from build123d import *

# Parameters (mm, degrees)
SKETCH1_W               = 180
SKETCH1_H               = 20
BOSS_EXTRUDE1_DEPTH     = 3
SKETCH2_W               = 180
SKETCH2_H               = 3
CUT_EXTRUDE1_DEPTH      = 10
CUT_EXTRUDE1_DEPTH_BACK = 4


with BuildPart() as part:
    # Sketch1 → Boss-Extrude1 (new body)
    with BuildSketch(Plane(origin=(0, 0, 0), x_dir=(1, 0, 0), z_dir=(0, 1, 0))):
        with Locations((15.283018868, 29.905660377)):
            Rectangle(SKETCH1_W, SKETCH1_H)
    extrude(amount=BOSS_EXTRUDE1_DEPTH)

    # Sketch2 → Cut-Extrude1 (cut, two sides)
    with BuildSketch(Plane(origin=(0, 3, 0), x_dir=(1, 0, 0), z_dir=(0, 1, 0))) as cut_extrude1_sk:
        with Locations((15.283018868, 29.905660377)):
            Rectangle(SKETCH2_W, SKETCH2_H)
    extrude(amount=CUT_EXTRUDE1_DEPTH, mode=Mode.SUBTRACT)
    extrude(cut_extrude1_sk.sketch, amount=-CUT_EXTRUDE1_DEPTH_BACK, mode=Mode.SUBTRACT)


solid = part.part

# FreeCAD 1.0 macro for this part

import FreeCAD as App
import Part
import Sketcher

doc = App.newDocument("Part")
body = doc.addObject("PartDesign::Body", "Body")
body.AllowCompound = True

sketch1 = doc.addObject("Sketcher::SketchObject", "Sketch")
body.addObject(sketch1)
sketch1.AttachmentSupport = (doc.XZ_Plane, [""])
sketch1.MapMode = "FlatFace"
sketch1.addGeometry(Part.LineSegment(App.Vector(-75, -40, 0), App.Vector(-75, -20, 0)), False)
sketch1.addGeometry(Part.LineSegment(App.Vector(-75, -20, 0), App.Vector(105, -20, 0)), False)
sketch1.addGeometry(Part.LineSegment(App.Vector(105, -20, 0), App.Vector(105, -40, 0)), False)
sketch1.addGeometry(Part.LineSegment(App.Vector(105, -40, 0), App.Vector(-75, -40, 0)), False)
sketch1.addConstraint(Sketcher.Constraint("Coincident", 0, 2, 1, 1))
sketch1.addConstraint(Sketcher.Constraint("Coincident", 1, 2, 2, 1))
sketch1.addConstraint(Sketcher.Constraint("Coincident", 2, 2, 3, 1))
sketch1.addConstraint(Sketcher.Constraint("Coincident", 3, 2, 0, 1))
sketch1.addConstraint(Sketcher.Constraint("Vertical", 0))
sketch1.addConstraint(Sketcher.Constraint("Horizontal", 1))
sketch1.addConstraint(Sketcher.Constraint("Vertical", 2))
sketch1.addConstraint(Sketcher.Constraint("Horizontal", 3))
sketch1.addConstraint(Sketcher.Constraint("DistanceX", 1, 1, 1, 2, 180.0))
sketch1.addConstraint(Sketcher.Constraint("DistanceY", 0, 1, 0, 2, 20.0))
sketch1.addConstraint(Sketcher.Constraint("DistanceX", 0, 2, -1, 1, 74.716981))
sketch1.addConstraint(Sketcher.Constraint("DistanceY", 0, 2, -1, 1, 19.90566))
pad1 = doc.addObject("PartDesign::Pad", "Pad")
body.addObject(pad1)
pad1.Profile = sketch1
pad1.Length = 3
pad1.Reversed = True

sketch2 = doc.addObject("Sketcher::SketchObject", "Sketch001")
body.addObject(sketch2)
sketch2.AttachmentSupport = (doc.XZ_Plane, [""])
sketch2.MapMode = "FlatFace"
sketch2.AttachmentOffset = App.Placement(App.Vector(0, 0, -3), App.Rotation())
sketch2.addGeometry(Part.LineSegment(App.Vector(-74.7, -31.4, 0), App.Vector(-74.7, -28.4, 0)), False)
sketch2.addGeometry(Part.LineSegment(App.Vector(-74.7, -28.4, 0), App.Vector(105.3, -28.4, 0)), False)
sketch2.addGeometry(Part.LineSegment(App.Vector(105.3, -28.4, 0), App.Vector(105.3, -31.4, 0)), False)
sketch2.addGeometry(Part.LineSegment(App.Vector(105.3, -31.4, 0), App.Vector(-74.7, -31.4, 0)), False)
sketch2.addConstraint(Sketcher.Constraint("Coincident", 0, 2, 1, 1))
sketch2.addConstraint(Sketcher.Constraint("Coincident", 1, 2, 2, 1))
sketch2.addConstraint(Sketcher.Constraint("Coincident", 2, 2, 3, 1))
sketch2.addConstraint(Sketcher.Constraint("Coincident", 3, 2, 0, 1))
sketch2.addConstraint(Sketcher.Constraint("Vertical", 0))
sketch2.addConstraint(Sketcher.Constraint("Horizontal", 1))
sketch2.addConstraint(Sketcher.Constraint("Vertical", 2))
sketch2.addConstraint(Sketcher.Constraint("Horizontal", 3))
sketch2.addConstraint(Sketcher.Constraint("DistanceX", 1, 1, 1, 2, 180.0))
sketch2.addConstraint(Sketcher.Constraint("DistanceY", 0, 1, 0, 2, 3.0))
sketch2.addConstraint(Sketcher.Constraint("DistanceX", 0, 2, -1, 1, 74.716981))
sketch2.addConstraint(Sketcher.Constraint("DistanceY", 0, 2, -1, 1, 28.40566))
pocket1 = doc.addObject("PartDesign::Pocket", "Pocket")
body.addObject(pocket1)
pocket1.Profile = sketch2
pocket1.Type = "ThroughAll"
pocket1.Midplane = True

doc.recompute()
